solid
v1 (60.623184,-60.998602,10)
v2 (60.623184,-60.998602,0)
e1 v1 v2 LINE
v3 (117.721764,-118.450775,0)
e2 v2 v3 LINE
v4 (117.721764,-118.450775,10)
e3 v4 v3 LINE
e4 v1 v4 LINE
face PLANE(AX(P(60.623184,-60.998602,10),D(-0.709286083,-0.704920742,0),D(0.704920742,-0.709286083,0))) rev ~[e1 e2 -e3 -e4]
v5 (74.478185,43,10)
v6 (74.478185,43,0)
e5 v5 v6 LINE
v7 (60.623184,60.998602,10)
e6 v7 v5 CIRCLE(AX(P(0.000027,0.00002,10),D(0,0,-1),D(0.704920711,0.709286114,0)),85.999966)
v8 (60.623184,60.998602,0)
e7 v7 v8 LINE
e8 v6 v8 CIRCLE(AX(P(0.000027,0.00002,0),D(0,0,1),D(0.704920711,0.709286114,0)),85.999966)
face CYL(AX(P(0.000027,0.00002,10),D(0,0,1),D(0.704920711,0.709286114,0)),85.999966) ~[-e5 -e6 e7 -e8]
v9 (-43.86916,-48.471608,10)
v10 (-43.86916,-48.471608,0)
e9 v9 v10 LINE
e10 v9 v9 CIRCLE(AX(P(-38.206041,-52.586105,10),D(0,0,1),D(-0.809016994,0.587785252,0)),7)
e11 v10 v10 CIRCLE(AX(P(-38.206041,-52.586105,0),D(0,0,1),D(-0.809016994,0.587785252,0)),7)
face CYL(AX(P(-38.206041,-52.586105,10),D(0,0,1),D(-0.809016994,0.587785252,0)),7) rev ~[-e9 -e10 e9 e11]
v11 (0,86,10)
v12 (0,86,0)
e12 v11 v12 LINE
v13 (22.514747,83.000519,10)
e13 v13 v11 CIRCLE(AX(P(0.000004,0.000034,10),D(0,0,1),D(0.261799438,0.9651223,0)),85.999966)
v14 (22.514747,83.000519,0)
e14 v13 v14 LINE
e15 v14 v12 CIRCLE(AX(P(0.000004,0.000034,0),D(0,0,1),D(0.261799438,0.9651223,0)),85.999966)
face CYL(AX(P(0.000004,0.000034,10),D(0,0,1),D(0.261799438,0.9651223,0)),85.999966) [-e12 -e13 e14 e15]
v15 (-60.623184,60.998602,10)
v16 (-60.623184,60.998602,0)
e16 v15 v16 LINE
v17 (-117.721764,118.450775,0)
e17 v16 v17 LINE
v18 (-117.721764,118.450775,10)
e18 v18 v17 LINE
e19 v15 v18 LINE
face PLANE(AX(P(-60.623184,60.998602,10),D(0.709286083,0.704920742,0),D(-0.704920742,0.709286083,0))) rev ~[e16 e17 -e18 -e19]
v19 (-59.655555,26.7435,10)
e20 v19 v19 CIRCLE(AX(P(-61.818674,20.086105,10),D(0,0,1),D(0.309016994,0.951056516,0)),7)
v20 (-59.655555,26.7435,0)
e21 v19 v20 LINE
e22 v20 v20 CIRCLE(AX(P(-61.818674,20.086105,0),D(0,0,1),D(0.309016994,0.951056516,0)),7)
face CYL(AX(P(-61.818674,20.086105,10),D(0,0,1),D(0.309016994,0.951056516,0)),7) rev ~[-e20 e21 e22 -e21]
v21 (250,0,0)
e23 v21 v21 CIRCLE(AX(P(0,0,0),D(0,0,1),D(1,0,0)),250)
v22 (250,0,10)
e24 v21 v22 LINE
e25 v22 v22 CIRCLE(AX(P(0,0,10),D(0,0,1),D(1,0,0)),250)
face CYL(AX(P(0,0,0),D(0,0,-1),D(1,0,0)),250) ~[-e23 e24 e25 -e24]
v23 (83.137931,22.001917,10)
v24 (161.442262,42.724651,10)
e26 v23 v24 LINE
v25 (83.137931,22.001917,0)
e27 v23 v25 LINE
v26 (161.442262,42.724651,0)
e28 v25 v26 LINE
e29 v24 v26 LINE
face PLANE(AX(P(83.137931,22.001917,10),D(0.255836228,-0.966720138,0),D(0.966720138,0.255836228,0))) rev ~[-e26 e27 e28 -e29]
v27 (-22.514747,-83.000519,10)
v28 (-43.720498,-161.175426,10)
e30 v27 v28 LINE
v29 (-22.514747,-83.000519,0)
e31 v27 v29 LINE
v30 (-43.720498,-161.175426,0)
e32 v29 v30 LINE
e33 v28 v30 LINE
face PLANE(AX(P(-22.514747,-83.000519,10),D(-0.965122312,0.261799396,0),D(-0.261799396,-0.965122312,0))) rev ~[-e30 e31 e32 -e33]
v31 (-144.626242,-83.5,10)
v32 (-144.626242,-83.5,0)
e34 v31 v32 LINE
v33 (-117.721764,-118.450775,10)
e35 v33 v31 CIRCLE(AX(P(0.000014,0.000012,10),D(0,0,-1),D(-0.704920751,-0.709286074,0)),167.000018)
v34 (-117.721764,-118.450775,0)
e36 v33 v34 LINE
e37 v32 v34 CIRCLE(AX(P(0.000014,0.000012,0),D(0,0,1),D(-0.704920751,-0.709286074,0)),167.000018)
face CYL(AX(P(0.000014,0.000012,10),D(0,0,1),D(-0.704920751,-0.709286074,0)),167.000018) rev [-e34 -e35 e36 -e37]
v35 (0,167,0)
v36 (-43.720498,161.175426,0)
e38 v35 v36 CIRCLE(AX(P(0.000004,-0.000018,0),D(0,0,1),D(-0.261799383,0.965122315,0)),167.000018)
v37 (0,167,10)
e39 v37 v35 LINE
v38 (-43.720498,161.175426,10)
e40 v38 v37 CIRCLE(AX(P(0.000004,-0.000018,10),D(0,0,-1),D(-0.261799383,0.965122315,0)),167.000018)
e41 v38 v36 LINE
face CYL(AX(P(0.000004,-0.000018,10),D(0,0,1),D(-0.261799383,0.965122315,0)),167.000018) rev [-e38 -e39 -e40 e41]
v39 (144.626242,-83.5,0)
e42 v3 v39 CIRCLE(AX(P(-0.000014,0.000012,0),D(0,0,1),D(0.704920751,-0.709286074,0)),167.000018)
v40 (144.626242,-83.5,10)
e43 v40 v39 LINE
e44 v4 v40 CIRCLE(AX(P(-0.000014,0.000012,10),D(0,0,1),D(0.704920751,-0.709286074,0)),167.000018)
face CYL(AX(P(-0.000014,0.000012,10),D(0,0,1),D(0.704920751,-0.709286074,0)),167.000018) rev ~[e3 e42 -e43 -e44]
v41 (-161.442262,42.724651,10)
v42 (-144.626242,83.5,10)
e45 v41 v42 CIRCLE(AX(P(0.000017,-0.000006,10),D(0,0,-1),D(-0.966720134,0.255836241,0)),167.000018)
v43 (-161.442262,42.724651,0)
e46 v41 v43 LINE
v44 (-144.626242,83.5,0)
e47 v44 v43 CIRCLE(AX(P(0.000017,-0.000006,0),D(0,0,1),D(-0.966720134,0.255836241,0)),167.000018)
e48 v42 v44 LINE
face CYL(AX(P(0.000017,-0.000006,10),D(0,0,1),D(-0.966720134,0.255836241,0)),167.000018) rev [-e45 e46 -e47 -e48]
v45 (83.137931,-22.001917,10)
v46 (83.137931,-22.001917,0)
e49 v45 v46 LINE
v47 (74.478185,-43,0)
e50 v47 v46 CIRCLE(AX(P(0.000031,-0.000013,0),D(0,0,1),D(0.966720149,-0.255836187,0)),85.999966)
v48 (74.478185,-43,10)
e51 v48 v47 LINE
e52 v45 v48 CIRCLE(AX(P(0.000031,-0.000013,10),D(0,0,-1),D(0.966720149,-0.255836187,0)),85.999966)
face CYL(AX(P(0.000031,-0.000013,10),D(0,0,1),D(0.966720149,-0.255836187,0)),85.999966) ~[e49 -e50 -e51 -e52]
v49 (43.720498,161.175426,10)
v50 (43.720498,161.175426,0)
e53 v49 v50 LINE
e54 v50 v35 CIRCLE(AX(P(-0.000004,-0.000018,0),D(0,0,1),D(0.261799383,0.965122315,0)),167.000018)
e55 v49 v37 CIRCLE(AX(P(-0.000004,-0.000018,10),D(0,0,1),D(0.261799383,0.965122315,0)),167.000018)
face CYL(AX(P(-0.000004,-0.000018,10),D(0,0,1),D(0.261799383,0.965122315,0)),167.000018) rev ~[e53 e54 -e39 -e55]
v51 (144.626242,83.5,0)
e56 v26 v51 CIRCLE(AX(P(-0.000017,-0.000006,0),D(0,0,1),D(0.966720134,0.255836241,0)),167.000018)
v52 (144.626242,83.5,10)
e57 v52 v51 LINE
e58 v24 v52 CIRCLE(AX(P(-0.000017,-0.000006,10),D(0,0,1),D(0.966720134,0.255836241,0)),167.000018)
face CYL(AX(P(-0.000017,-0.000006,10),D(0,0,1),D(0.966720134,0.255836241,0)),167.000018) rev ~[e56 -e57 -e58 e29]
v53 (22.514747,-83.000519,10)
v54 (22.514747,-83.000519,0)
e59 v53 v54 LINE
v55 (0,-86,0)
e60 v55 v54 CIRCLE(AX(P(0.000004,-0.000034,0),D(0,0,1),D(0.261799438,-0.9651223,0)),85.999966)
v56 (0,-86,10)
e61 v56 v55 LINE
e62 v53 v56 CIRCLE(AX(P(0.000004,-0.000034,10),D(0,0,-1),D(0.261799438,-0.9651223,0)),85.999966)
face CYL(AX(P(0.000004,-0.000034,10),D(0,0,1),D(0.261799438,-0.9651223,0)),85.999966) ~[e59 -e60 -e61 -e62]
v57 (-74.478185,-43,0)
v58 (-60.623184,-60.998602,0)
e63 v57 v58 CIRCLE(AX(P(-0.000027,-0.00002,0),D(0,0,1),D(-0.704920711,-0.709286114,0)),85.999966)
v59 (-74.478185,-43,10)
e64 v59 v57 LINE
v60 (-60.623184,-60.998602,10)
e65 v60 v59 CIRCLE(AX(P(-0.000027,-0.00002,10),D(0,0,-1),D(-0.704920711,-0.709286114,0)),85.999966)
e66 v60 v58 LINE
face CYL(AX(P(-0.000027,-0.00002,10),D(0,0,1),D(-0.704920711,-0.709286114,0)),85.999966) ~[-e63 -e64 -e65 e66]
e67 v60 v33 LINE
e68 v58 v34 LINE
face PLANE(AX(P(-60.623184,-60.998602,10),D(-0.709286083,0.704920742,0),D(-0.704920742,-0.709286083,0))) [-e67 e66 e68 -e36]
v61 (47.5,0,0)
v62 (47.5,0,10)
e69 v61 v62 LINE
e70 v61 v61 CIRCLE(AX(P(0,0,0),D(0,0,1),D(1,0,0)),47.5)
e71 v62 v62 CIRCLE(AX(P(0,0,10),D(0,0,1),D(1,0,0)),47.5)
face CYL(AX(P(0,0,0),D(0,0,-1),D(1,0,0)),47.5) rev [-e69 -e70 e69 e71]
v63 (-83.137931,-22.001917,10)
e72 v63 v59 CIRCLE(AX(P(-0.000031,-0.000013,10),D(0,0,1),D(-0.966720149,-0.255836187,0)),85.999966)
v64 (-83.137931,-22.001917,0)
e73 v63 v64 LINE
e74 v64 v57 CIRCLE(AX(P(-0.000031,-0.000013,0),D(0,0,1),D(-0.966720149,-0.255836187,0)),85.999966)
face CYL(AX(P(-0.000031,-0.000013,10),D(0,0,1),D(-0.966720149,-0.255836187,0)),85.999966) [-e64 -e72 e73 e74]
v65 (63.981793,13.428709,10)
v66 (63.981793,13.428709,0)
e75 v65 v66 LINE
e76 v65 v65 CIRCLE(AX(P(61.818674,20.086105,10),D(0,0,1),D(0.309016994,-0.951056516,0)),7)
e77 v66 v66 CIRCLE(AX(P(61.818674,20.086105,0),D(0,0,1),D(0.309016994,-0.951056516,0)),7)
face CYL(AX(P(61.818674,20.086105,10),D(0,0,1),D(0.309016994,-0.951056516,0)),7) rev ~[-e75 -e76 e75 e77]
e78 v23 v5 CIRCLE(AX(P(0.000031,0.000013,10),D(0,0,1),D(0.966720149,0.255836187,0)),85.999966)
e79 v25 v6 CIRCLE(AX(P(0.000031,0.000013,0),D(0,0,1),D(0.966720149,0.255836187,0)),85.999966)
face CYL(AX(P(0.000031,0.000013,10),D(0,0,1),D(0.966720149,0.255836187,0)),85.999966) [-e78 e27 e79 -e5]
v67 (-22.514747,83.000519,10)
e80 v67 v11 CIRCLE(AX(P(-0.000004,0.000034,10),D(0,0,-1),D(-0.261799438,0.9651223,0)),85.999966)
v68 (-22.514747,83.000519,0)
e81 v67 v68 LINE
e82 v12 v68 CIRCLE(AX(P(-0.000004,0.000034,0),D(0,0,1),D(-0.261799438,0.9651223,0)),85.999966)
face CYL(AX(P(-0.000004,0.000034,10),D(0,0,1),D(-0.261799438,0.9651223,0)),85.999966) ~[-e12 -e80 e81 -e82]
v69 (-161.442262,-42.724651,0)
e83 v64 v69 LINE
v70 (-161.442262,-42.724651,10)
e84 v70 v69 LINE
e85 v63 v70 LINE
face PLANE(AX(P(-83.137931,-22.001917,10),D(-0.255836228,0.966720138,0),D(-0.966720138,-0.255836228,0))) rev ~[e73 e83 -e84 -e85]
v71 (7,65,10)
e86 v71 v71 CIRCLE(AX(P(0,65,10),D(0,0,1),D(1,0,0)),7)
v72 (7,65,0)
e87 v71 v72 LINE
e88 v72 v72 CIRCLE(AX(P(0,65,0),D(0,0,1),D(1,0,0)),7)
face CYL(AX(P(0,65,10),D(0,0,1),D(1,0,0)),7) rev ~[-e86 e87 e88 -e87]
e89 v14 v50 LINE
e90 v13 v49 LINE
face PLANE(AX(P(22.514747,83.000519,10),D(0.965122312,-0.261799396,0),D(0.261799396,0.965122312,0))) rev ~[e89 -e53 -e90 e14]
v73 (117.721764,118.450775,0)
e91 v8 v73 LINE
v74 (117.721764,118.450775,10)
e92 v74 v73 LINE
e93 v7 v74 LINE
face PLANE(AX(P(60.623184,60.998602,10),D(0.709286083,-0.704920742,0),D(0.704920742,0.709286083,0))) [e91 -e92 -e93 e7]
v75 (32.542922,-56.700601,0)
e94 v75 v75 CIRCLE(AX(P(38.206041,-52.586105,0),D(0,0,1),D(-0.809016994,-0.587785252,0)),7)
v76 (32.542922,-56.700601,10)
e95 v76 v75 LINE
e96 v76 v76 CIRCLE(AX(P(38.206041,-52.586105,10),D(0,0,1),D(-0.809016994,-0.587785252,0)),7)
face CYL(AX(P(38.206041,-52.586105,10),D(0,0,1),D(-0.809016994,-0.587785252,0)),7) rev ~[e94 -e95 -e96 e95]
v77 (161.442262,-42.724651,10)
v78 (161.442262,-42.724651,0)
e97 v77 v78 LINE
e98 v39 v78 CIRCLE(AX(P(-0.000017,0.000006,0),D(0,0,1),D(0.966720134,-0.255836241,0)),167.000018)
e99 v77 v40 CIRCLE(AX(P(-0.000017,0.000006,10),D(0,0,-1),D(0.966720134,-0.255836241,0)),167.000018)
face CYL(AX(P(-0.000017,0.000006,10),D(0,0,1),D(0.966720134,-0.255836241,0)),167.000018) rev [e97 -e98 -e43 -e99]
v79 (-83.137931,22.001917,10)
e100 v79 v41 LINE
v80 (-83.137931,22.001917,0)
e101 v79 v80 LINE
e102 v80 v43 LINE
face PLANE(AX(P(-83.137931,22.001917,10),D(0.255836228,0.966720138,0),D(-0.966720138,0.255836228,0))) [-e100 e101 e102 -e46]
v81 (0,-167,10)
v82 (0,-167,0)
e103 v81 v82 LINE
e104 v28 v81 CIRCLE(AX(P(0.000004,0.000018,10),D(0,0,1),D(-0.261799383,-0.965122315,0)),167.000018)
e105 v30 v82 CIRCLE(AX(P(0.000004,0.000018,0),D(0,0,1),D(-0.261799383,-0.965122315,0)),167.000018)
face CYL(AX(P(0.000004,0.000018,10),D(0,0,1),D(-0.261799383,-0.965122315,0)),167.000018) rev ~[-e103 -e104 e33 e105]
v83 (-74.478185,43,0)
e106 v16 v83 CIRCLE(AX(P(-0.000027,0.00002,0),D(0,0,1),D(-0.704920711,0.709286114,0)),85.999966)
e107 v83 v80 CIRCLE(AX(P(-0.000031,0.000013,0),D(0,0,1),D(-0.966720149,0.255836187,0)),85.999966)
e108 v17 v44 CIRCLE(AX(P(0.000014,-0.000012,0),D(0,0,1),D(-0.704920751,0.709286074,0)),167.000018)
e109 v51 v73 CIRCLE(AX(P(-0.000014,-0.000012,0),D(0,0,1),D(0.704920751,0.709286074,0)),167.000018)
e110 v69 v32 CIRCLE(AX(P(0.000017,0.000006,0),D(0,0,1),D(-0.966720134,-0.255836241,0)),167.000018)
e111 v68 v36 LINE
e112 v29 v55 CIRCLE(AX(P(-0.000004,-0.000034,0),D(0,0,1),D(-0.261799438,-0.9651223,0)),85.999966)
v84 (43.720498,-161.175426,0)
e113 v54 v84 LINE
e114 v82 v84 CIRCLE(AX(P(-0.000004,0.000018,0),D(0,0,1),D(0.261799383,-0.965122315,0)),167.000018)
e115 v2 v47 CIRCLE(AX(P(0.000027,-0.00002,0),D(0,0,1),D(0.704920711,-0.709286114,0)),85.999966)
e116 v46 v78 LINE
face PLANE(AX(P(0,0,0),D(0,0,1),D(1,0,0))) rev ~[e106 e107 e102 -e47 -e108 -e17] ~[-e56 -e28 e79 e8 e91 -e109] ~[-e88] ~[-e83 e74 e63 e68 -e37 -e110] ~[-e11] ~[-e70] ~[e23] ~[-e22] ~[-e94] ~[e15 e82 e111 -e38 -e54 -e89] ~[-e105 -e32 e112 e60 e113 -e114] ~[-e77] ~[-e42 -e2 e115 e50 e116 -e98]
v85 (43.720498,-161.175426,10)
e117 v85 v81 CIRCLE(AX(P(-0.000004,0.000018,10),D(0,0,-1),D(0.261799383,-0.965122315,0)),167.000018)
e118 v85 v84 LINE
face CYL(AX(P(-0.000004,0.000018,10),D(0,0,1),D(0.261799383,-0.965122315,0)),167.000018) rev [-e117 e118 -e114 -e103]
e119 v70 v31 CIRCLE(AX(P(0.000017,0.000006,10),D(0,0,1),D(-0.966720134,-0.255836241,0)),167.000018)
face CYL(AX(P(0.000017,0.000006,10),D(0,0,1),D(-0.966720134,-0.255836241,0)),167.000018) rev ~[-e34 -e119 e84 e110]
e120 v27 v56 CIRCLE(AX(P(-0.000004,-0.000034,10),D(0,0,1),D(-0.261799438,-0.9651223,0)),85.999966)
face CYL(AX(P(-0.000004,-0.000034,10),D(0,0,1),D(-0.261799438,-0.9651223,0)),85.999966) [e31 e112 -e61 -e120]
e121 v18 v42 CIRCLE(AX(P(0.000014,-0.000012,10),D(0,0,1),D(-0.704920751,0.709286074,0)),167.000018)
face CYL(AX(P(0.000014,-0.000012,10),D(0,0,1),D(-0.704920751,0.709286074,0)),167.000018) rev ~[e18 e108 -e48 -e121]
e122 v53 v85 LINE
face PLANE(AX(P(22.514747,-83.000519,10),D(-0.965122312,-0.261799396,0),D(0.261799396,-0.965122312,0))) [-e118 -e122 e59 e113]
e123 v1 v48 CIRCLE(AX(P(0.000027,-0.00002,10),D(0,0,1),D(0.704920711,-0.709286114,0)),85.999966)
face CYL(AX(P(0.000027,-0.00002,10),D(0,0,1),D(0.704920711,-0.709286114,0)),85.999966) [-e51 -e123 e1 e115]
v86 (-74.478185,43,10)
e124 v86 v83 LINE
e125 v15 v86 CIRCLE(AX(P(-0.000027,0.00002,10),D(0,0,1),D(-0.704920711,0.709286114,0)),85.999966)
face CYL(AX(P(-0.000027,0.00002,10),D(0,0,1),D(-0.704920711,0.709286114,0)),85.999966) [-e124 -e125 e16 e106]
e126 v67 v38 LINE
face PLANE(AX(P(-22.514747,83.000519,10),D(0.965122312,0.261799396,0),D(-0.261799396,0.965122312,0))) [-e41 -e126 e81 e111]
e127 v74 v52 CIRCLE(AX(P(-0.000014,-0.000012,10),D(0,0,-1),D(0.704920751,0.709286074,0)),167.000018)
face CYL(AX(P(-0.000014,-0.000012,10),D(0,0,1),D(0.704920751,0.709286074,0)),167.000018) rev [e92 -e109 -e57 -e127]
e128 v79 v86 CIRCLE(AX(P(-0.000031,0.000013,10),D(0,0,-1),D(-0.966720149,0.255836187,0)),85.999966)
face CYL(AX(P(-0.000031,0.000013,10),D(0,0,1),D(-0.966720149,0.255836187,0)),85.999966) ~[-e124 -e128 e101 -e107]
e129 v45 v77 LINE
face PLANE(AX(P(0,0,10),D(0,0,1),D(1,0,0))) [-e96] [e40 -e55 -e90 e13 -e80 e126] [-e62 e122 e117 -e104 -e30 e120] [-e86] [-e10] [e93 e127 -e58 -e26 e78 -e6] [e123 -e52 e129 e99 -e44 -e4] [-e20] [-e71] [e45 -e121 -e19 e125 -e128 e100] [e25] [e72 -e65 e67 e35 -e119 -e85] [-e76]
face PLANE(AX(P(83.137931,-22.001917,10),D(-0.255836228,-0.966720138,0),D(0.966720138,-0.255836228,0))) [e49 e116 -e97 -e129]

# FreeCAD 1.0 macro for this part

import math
import FreeCAD as App
import Part
import Sketcher
Q = App.Units.Quantity

doc = App.newDocument("Part")
body = doc.addObject("PartDesign::Body", "Body")

sketch1 = body.newObject("Sketcher::SketchObject", "Sketch")
sketch1.AttachmentSupport = (doc.getObject("XY_Plane"), [""])
sketch1.MapMode = "FlatFace"
sketch1.addGeometry(Part.Circle(App.Vector(0, 0, 0), App.Vector(0, 0, 1), 250), False)
sketch1.addGeometry(Part.Circle(App.Vector(0, 0, 0), App.Vector(0, 0, 1), 48), False)
sketch1.addConstraint(Sketcher.Constraint("Coincident", 0, 3, -1, 1))
sketch1.addConstraint(Sketcher.Constraint("Coincident", 1, 3, -1, 1))
sketch1.addConstraint(Sketcher.Constraint("Diameter", 0, Q("500 mm")))
sketch1.addConstraint(Sketcher.Constraint("Diameter", 1, Q("95 mm")))
pad1 = body.newObject("PartDesign::Pad", "Pad")
pad1.Profile = sketch1
pad1.Length = 10

sketch2 = body.newObject("Sketcher::SketchObject", "Sketch001")
sketch2.AttachmentSupport = (doc.getObject("XY_Plane"), [""])
sketch2.MapMode = "FlatFace"
sketch2.AttachmentOffset = App.Placement(App.Vector(0, 0, 10), App.Rotation())
sketch2.addGeometry(Part.LineSegment(App.Vector(23, 83, 0), App.Vector(44, 161, 0)), False)
sketch2.addGeometry(Part.ArcOfCircle(Part.Circle(App.Vector(0, 0, 0), App.Vector(0, 0, 1), 167), math.radians(74.82), math.radians(90)), False)
sketch2.addGeometry(Part.LineSegment(App.Vector(0, 167, 0), App.Vector(0, 86, 0)), False)
sketch2.addGeometry(Part.ArcOfCircle(Part.Circle(App.Vector(0, 0, 0), App.Vector(0, 0, 1), 86), math.radians(74.82), math.radians(90)), False)
sketch2.addConstraint(Sketcher.Constraint("Coincident", 0, 2, 1, 1))
sketch2.addConstraint(Sketcher.Constraint("Coincident", 1, 2, 2, 1))
sketch2.addConstraint(Sketcher.Constraint("Coincident", 2, 2, 3, 2))
sketch2.addConstraint(Sketcher.Constraint("Coincident", 3, 1, 0, 1))
sketch2.addConstraint(Sketcher.Constraint("Vertical", 2))
sketch2.addConstraint(Sketcher.Constraint("PointOnObject", 1, 2, -2))
sketch2.addConstraint(Sketcher.Constraint("DistanceY", 2, 2, 2, 1, Q("81 mm")))
sketch2.addConstraint(Sketcher.Constraint("Distance", 0, Q("81 mm")))
sketch2.addConstraint(Sketcher.Constraint("DistanceY", -1, 1, 1, 2, Q("167 mm")))
sketch2.addConstraint(Sketcher.Constraint("Radius", 1, Q("167.000018 mm")))
sketch2.addConstraint(Sketcher.Constraint("Radius", 3, Q("85.999966 mm")))
sketch2.addConstraint(Sketcher.Constraint("DistanceX", 1, 3, 0, 2, Q("43.720502 mm")))
sketch2.addConstraint(Sketcher.Constraint("DistanceY", -1, 1, 3, 1, Q("83.000519 mm")))
sketch2.addConstraint(Sketcher.Constraint("DistanceX", -1, 1, 0, 2, Q("43.720498 mm")))
pocket1 = body.newObject("PartDesign::Pocket", "Pocket")
pocket1.Profile = sketch2
pocket1.Type = "ThroughAll"

sketch3 = body.newObject("Sketcher::SketchObject", "Sketch002")
sketch3.AttachmentSupport = (doc.getObject("XY_Plane"), [""])
sketch3.MapMode = "FlatFace"
sketch3.AttachmentOffset = App.Placement(App.Vector(0, 0, 10), App.Rotation())
sketch3.addGeometry(Part.LineSegment(App.Vector(-23, 83, 0), App.Vector(-44, 161, 0)), False)
sketch3.addGeometry(Part.ArcOfCircle(Part.Circle(App.Vector(0, 0, 0), App.Vector(0, 0, 1), 167), math.radians(90), math.radians(105.18)), False)
sketch3.addGeometry(Part.LineSegment(App.Vector(0, 167, 0), App.Vector(0, 86, 0)), False)
sketch3.addGeometry(Part.ArcOfCircle(Part.Circle(App.Vector(0, 0, 0), App.Vector(0, 0, 1), 86), math.radians(90), math.radians(105.18)), False)
sketch3.addConstraint(Sketcher.Constraint("Coincident", 0, 2, 1, 2))
sketch3.addConstraint(Sketcher.Constraint("Coincident", 1, 1, 2, 1))
sketch3.addConstraint(Sketcher.Constraint("Coincident", 2, 2, 3, 1))
sketch3.addConstraint(Sketcher.Constraint("Coincident", 3, 2, 0, 1))
sketch3.addConstraint(Sketcher.Constraint("Vertical", 2))
sketch3.addConstraint(Sketcher.Constraint("PointOnObject", 1, 1, -2))
sketch3.addConstraint(Sketcher.Constraint("DistanceY", 2, 2, 2, 1, Q("81 mm")))
sketch3.addConstraint(Sketcher.Constraint("Distance", 0, Q("81 mm")))
sketch3.addConstraint(Sketcher.Constraint("DistanceY", -1, 1, 1, 1, Q("167 mm")))
sketch3.addConstraint(Sketcher.Constraint("Radius", 1, Q("167.000018 mm")))
sketch3.addConstraint(Sketcher.Constraint("Radius", 3, Q("85.999966 mm")))
sketch3.addConstraint(Sketcher.Constraint("DistanceX", 0, 2, 1, 3, Q("43.720502 mm")))
sketch3.addConstraint(Sketcher.Constraint("DistanceX", 0, 2, 1, 1, Q("43.720498 mm")))
sketch3.addConstraint(Sketcher.Constraint("DistanceY", -1, 1, 3, 2, Q("83.000519 mm")))
pocket2 = body.newObject("PartDesign::Pocket", "Pocket001")
pocket2.Profile = sketch3
pocket2.Type = "ThroughAll"
doc.recompute()

polarpattern = body.newObject("PartDesign::PolarPattern", "PolarPattern")
polarpattern.Originals = [pocket1, pocket2]
polarpattern.Axis = (doc.getObject("Z_Axis"), [""])
polarpattern.Angle = 360
polarpattern.Occurrences = 6
body.Tip = polarpattern

sketch4 = body.newObject("Sketcher::SketchObject", "Sketch003")
sketch4.AttachmentSupport = (doc.getObject("XY_Plane"), [""])
sketch4.MapMode = "FlatFace"
sketch4.AttachmentOffset = App.Placement(App.Vector(0, 0, 10), App.Rotation())
sketch4.addGeometry(Part.Circle(App.Vector(0, 65, 0), App.Vector(0, 0, 1), 7), False)
sketch4.addConstraint(Sketcher.Constraint("PointOnObject", 0, 3, -2))
sketch4.addConstraint(Sketcher.Constraint("Diameter", 0, Q("14 mm")))
sketch4.addConstraint(Sketcher.Constraint("DistanceY", -1, 1, 0, 3, Q("65 mm")))
pocket3 = body.newObject("PartDesign::Pocket", "Pocket002")
pocket3.Profile = sketch4
pocket3.Type = "ThroughAll"
doc.recompute()

polarpattern2 = body.newObject("PartDesign::PolarPattern", "PolarPattern001")
polarpattern2.Originals = [pocket3]
polarpattern2.Axis = (doc.getObject("Z_Axis"), [""])
polarpattern2.Angle = 360
polarpattern2.Occurrences = 5
body.Tip = polarpattern2

doc.recompute()
